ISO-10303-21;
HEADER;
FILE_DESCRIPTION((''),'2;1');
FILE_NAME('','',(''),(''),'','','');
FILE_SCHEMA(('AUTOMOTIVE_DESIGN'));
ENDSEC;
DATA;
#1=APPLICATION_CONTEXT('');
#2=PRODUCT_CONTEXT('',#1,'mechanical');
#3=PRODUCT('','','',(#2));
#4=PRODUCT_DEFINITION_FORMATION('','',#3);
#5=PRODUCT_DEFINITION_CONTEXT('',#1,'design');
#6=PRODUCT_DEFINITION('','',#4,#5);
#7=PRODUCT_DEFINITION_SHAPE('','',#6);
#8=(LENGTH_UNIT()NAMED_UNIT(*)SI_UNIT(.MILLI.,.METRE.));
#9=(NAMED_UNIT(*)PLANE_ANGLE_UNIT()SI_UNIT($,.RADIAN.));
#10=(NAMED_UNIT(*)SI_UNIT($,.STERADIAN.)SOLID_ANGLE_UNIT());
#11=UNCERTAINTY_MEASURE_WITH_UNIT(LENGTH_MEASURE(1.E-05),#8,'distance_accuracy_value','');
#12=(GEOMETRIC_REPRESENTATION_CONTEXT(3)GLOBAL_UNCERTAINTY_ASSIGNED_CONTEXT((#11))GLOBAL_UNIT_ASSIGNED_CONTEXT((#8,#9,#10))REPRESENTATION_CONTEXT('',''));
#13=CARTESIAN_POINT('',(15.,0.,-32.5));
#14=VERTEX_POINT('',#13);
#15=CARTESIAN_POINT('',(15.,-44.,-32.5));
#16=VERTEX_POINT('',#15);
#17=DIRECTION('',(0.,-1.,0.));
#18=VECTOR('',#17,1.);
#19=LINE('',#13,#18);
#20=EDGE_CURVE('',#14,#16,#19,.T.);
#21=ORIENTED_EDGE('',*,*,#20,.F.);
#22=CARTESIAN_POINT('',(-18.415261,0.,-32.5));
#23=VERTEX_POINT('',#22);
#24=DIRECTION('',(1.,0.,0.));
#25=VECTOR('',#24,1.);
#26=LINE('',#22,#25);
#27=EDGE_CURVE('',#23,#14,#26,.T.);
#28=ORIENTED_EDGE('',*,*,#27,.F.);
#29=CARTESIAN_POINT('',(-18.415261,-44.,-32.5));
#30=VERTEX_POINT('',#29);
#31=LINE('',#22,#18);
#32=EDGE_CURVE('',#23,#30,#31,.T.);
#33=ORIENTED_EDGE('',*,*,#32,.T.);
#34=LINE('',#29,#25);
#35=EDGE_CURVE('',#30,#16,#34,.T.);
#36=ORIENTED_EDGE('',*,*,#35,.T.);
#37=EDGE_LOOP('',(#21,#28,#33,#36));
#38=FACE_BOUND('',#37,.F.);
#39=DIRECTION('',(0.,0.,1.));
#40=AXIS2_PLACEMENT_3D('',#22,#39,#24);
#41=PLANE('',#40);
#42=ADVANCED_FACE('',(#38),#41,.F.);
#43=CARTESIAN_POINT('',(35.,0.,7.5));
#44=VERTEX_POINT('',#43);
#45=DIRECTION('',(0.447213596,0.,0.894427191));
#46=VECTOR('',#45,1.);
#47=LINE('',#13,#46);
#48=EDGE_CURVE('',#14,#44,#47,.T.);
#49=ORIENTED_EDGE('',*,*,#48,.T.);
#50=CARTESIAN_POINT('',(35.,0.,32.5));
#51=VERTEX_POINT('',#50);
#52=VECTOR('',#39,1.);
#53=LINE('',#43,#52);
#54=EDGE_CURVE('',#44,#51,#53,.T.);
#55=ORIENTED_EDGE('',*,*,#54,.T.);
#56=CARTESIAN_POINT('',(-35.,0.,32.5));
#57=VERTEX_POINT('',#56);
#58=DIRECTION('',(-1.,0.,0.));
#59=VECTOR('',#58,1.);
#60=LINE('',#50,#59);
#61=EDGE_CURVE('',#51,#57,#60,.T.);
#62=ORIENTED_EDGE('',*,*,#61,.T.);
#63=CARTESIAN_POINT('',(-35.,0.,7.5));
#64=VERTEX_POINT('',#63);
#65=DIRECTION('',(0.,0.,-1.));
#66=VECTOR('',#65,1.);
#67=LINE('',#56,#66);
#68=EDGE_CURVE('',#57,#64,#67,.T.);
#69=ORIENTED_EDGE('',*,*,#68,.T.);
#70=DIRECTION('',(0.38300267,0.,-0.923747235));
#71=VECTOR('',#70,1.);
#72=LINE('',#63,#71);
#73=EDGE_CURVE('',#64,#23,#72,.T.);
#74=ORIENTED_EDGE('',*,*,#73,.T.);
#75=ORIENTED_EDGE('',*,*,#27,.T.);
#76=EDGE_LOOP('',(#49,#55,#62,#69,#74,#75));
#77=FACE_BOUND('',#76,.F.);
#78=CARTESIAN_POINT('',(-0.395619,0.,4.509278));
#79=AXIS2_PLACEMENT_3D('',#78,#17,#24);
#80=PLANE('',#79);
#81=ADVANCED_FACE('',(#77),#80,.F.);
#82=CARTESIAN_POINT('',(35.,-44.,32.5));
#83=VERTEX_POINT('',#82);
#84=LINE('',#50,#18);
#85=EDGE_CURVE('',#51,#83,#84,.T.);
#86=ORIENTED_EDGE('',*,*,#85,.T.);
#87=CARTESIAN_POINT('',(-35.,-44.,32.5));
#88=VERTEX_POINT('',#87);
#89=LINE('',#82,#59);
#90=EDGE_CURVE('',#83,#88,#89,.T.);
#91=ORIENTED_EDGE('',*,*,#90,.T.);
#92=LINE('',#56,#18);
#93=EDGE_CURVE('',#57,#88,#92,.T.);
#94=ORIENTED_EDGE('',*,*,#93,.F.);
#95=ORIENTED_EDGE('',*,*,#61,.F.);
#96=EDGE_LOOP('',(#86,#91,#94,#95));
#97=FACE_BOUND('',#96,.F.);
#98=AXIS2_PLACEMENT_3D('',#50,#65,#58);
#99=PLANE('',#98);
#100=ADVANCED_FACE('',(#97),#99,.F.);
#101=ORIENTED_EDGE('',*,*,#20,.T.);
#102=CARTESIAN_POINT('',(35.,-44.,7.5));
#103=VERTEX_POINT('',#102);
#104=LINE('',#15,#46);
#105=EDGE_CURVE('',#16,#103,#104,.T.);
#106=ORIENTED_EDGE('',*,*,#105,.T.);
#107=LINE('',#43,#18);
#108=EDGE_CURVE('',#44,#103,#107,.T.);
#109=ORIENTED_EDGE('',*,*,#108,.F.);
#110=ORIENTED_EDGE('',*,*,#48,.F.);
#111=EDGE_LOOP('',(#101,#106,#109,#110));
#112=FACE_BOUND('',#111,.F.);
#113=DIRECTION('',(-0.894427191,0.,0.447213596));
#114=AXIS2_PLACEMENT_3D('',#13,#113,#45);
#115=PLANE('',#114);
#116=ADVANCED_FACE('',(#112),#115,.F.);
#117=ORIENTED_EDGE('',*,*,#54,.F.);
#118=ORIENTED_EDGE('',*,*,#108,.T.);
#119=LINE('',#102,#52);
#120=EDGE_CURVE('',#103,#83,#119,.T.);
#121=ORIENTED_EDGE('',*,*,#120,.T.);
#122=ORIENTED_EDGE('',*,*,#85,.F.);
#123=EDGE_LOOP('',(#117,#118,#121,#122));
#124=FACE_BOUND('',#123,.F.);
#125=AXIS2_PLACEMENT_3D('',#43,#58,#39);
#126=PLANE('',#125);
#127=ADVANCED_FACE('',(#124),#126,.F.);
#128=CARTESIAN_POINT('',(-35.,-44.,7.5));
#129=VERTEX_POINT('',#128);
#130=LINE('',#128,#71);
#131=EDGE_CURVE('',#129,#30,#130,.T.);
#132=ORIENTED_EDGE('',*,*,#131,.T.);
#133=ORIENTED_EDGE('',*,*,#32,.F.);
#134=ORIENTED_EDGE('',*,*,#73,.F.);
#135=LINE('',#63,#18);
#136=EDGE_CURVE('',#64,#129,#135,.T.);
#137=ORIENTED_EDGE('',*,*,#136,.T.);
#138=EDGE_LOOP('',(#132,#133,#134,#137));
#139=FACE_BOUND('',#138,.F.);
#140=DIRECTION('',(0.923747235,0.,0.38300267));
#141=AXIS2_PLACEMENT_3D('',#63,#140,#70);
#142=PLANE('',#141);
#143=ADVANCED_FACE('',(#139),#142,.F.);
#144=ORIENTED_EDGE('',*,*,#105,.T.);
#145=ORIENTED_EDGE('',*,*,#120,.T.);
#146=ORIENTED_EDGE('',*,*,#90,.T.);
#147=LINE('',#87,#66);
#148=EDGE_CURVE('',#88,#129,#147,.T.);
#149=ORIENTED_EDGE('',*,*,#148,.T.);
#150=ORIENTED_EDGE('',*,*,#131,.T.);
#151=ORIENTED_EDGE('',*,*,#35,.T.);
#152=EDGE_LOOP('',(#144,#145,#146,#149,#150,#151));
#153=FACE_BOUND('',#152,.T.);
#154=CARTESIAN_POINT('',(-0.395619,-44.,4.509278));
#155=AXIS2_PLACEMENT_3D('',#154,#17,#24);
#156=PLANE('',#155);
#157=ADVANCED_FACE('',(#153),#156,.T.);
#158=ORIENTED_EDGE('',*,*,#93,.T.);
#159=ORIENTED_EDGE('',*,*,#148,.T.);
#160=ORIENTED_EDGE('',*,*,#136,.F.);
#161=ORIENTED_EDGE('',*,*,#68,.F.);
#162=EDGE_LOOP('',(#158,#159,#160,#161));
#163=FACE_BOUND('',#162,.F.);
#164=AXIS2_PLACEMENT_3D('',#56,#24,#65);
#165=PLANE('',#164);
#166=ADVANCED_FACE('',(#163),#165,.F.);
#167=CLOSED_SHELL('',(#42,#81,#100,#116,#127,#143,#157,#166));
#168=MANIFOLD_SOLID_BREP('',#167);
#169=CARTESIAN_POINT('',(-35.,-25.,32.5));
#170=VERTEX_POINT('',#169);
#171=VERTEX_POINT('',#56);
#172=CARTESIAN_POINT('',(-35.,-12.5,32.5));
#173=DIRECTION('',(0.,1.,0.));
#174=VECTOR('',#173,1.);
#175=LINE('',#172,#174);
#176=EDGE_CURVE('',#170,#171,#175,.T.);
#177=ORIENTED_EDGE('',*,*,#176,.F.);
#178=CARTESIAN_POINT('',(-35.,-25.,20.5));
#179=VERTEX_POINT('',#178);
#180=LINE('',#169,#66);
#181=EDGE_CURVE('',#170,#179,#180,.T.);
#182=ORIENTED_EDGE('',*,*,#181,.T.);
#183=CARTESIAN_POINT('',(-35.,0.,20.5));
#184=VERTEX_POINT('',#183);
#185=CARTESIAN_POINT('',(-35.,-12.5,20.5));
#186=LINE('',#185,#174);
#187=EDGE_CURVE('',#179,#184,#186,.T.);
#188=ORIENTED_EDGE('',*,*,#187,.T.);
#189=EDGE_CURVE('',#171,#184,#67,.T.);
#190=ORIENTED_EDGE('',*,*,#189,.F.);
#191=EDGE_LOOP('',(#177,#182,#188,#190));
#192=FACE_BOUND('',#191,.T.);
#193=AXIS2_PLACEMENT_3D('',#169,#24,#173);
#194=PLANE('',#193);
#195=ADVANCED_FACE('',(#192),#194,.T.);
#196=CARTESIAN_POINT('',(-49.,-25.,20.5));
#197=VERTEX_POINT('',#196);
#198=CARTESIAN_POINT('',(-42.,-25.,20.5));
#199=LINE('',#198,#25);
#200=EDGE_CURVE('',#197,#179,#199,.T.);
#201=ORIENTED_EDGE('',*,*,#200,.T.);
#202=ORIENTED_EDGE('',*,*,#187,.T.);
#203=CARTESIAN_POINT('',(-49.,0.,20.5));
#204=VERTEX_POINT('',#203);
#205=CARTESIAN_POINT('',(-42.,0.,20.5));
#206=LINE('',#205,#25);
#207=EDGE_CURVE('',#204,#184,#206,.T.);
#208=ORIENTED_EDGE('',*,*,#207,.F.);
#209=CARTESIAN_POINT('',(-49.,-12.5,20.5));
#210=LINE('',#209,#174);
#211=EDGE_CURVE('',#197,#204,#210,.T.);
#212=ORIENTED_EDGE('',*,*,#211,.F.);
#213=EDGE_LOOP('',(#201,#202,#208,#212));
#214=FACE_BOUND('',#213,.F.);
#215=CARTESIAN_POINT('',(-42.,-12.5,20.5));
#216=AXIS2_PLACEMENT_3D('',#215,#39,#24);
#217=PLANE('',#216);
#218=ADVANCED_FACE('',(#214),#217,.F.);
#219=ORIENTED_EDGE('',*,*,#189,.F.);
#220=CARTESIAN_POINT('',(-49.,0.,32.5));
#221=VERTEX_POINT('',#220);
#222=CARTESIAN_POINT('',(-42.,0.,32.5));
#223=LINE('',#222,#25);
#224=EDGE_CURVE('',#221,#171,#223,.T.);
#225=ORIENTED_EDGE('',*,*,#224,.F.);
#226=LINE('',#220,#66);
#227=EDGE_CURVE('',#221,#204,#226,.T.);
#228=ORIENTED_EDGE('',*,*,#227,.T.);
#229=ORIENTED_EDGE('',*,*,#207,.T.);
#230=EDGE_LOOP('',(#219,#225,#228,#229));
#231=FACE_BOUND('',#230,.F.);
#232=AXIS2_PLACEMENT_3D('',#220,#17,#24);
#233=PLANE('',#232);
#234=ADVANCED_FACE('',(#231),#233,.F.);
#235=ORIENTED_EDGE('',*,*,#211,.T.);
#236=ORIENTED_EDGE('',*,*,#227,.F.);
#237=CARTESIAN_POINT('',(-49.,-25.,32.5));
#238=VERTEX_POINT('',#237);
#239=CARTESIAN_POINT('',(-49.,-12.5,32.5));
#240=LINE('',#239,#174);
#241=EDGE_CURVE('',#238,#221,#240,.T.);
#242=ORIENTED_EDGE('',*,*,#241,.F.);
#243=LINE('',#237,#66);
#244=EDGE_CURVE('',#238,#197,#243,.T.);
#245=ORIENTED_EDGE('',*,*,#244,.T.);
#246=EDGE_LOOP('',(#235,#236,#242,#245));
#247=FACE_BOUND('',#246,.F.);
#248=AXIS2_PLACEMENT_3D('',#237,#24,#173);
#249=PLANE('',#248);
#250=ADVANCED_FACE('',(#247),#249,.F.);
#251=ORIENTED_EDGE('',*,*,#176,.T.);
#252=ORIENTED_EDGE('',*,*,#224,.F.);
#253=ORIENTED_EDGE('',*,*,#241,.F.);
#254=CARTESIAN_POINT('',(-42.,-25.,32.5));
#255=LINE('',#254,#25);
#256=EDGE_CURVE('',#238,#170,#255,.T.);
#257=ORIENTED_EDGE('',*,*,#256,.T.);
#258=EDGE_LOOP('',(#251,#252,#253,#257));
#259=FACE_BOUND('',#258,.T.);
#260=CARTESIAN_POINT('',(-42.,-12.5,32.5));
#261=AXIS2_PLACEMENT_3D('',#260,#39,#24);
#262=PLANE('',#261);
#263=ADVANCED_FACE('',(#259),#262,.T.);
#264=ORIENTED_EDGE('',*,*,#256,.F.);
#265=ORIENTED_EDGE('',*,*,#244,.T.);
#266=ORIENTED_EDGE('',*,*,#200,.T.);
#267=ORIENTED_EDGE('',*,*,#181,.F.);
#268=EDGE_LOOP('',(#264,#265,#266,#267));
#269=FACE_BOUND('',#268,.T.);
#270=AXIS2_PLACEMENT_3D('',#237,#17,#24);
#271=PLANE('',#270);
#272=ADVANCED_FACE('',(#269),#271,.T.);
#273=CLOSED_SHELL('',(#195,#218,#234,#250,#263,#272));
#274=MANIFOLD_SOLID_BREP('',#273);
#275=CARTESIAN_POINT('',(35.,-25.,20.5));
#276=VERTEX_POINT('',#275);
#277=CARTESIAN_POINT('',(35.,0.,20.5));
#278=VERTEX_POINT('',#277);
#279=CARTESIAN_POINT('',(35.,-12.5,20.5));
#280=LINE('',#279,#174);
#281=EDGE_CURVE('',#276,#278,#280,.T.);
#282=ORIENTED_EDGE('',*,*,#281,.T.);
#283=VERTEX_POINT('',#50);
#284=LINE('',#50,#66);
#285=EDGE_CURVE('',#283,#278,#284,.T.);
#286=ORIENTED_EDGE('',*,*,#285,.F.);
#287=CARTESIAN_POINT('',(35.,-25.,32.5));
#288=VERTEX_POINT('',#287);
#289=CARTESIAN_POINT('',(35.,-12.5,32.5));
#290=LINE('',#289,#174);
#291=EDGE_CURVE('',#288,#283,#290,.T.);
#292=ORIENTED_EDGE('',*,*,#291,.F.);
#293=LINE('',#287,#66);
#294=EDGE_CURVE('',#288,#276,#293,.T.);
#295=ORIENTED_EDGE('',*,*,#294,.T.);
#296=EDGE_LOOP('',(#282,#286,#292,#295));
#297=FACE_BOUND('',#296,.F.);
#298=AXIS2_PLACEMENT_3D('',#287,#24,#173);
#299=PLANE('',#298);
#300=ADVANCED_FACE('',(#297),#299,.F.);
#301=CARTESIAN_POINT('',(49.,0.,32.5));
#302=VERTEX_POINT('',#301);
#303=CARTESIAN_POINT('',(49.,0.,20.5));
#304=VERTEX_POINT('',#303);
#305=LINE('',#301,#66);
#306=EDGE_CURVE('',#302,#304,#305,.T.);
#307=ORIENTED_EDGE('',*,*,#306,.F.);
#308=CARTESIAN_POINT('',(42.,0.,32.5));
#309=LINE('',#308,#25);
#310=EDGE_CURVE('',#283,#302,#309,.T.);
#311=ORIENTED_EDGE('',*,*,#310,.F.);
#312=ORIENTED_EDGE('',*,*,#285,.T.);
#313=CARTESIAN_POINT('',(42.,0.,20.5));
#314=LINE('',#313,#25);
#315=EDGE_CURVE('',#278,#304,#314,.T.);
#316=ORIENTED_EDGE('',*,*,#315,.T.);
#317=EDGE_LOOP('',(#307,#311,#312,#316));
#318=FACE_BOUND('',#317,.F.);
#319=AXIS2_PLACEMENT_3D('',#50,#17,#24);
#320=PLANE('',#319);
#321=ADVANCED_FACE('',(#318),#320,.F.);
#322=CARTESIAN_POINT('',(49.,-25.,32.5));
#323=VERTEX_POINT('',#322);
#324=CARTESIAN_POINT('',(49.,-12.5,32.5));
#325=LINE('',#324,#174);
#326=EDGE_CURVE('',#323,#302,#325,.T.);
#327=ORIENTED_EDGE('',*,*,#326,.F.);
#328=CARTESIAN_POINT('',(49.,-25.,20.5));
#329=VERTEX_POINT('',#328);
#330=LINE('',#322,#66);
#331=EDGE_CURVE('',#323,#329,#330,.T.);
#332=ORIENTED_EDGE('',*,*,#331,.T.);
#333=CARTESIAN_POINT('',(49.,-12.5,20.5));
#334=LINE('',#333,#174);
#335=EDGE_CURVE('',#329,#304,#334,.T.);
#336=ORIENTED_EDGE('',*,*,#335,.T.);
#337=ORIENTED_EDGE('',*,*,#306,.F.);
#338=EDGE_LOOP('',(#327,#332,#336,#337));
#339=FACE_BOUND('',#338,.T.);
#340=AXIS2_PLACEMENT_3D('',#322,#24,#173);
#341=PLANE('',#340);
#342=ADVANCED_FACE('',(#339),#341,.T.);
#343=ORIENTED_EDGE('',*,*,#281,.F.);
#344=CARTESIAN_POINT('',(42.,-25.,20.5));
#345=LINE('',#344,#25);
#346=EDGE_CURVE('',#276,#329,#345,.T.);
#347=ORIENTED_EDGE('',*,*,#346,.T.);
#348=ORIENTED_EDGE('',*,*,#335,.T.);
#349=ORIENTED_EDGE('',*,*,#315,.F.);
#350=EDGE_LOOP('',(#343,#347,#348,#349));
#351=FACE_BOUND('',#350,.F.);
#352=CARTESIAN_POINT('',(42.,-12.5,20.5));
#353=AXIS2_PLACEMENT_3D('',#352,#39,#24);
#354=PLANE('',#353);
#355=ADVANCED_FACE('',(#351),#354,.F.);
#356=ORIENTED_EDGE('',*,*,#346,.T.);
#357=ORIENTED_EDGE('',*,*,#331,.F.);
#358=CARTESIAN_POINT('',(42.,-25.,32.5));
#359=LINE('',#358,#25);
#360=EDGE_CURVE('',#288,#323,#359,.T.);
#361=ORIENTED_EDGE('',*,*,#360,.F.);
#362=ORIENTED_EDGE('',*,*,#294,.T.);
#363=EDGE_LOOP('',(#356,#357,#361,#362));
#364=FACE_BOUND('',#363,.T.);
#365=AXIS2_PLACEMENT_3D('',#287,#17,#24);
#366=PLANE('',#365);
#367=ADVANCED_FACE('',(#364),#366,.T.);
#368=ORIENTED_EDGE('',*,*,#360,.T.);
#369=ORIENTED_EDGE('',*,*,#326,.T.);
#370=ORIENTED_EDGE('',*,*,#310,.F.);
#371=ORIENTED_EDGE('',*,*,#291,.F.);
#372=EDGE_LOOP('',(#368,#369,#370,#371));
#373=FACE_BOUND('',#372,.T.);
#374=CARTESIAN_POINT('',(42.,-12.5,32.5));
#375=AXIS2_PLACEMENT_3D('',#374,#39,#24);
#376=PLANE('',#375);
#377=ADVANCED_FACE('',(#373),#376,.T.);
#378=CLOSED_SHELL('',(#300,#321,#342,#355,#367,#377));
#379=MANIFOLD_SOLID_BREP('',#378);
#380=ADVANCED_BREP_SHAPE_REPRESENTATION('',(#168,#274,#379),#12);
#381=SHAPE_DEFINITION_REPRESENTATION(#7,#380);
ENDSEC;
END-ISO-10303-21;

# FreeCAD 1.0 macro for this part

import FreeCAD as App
import Part
import Sketcher
from FreeCAD import Vector

doc = App.newDocument("Part")
params = doc.addObject("Spreadsheet::Sheet", "Params")
for row, (alias, value) in enumerate([
    ("sketch1_width", "70 mm"),
    ("sketch1_height", "25 mm"),
    ("pad1_length", "44 mm"),
    ("sketch2_width", "14 mm"),
    ("sketch2_height", "25 mm"),
    ("pad2_length", "12 mm"),
], start=1):
    params.set(f"A{row}", alias)
    params.set(f"B{row}", "=" + value)
    params.setAlias(f"B{row}", alias)

body = doc.addObject("PartDesign::Body", "Body")

sketch1 = doc.addObject("Sketcher::SketchObject", "Sketch")
body.addObject(sketch1)
sketch1.AttachmentSupport = (doc.XZ_Plane, [""])
sketch1.MapMode = "FlatFace"
sketch1.addGeometry([
    Part.LineSegment(Vector(35, 32, 0), Vector(-35, 32, 0)),
    Part.LineSegment(Vector(-35, 32, 0), Vector(-35, 8, 0)),
    Part.LineSegment(Vector(-35, 8, 0), Vector(-18, -32, 0)),
    Part.LineSegment(Vector(-18, -32, 0), Vector(15, -32, 0)),
    Part.LineSegment(Vector(15, -32, 0), Vector(35, 8, 0)),
    Part.LineSegment(Vector(35, 8, 0), Vector(35, 32, 0)),
], False)
sketch1.addConstraint([
    Sketcher.Constraint("Coincident", 0, 2, 1, 1),
    Sketcher.Constraint("Coincident", 1, 2, 2, 1),
    Sketcher.Constraint("Coincident", 2, 2, 3, 1),
    Sketcher.Constraint("Coincident", 3, 2, 4, 1),
    Sketcher.Constraint("Coincident", 4, 2, 5, 1),
    Sketcher.Constraint("Coincident", 5, 2, 0, 1),
    Sketcher.Constraint("Horizontal", 0),
    Sketcher.Constraint("Vertical", 1),
    Sketcher.Constraint("Horizontal", 3),
    Sketcher.Constraint("Vertical", 5),
    Sketcher.Constraint("Symmetric", 1, 2, 4, 2, -2),
    Sketcher.Constraint("DistanceX", 0, 2, 0, 1, 70.0),
    Sketcher.Constraint("DistanceY", 1, 2, 1, 1, 25.0),
    Sketcher.Constraint("DistanceX", -1, 1, 3, 2, 15.0),
    Sketcher.Constraint("DistanceY", 2, 2, 1, 2, 40.0),
    Sketcher.Constraint("DistanceY", -1, 1, 0, 2, 32.5),
    Sketcher.Constraint("DistanceX", 3, 1, 3, 2, 33.415261),
])
sketch1.setExpression("Constraints[11]", "Params.sketch1_width")
sketch1.setExpression("Constraints[12]", "Params.sketch1_height")
pad1 = doc.addObject("PartDesign::Pad", "Pad")
body.addObject(pad1)
pad1.Profile = sketch1
pad1.setExpression("Length", "Params.pad1_length")
body2 = doc.addObject("PartDesign::Body", "Body001")
body2.AllowCompound = True

sketch2 = doc.addObject("Sketcher::SketchObject", "Sketch001")
body2.addObject(sketch2)
sketch2.AttachmentSupport = (doc.getObject("XY_Plane001"), [""])
sketch2.MapMode = "FlatFace"
sketch2.AttachmentOffset = App.Placement(Vector(0, 0, 32.5), App.Rotation())
sketch2.addGeometry([
    Part.LineSegment(Vector(-49, 0, 0), Vector(-49, -25, 0)),
    Part.LineSegment(Vector(-49, -25, 0), Vector(-35, -25, 0)),
    Part.LineSegment(Vector(-35, -25, 0), Vector(-35, 0, 0)),
    Part.LineSegment(Vector(-35, 0, 0), Vector(-49, 0, 0)),
    Part.LineSegment(Vector(35, 0, 0), Vector(35, -25, 0)),
    Part.LineSegment(Vector(35, -25, 0), Vector(49, -25, 0)),
    Part.LineSegment(Vector(49, -25, 0), Vector(49, 0, 0)),
    Part.LineSegment(Vector(49, 0, 0), Vector(35, 0, 0)),
], False)
sketch2.addConstraint([
    Sketcher.Constraint("Coincident", 0, 2, 1, 1),
    Sketcher.Constraint("Coincident", 1, 2, 2, 1),
    Sketcher.Constraint("Coincident", 2, 2, 3, 1),
    Sketcher.Constraint("Coincident", 3, 2, 0, 1),
    Sketcher.Constraint("Coincident", 4, 2, 5, 1),
    Sketcher.Constraint("Coincident", 5, 2, 6, 1),
    Sketcher.Constraint("Coincident", 6, 2, 7, 1),
    Sketcher.Constraint("Coincident", 7, 2, 4, 1),
    Sketcher.Constraint("Vertical", 0),
    Sketcher.Constraint("Horizontal", 1),
    Sketcher.Constraint("Vertical", 2),
    Sketcher.Constraint("Horizontal", 3),
    Sketcher.Constraint("Vertical", 4),
    Sketcher.Constraint("Horizontal", 5),
    Sketcher.Constraint("Vertical", 6),
    Sketcher.Constraint("Horizontal", 7),
    Sketcher.Constraint("Symmetric", 3, 2, 6, 2, -1, 1),
    Sketcher.Constraint("Symmetric", 1, 2, 4, 2, -2),
    Sketcher.Constraint("PointOnObject", 2, 2, -1),
    Sketcher.Constraint("DistanceX", 1, 1, 1, 2, 14.0),
    Sketcher.Constraint("DistanceY", 0, 2, 0, 1, 25.0),
    Sketcher.Constraint("DistanceX", 0, 2, -1, 1, 49.0),
])
sketch2.setExpression("Constraints[19]", "Params.sketch2_width")
sketch2.setExpression("Constraints[20]", "Params.sketch2_height")
pad2 = doc.addObject("PartDesign::Pad", "Pad001")
body2.addObject(pad2)
pad2.Profile = sketch2
pad2.setExpression("Length", "Params.pad2_length")
pad2.Reversed = True

doc.recompute()
